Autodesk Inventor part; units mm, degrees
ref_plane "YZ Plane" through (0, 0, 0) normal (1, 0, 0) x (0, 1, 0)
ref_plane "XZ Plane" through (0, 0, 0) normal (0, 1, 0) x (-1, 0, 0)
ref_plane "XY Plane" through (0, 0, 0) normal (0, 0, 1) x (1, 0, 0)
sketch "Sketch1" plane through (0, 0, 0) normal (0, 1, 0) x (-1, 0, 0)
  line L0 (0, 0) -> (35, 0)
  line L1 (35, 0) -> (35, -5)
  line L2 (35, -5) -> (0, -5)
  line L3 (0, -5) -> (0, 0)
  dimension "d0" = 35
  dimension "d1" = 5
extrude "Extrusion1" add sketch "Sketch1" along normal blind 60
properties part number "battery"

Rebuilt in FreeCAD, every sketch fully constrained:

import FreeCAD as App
import Part
import Sketcher


def add_polygon(sketch, points):
    """Adds a closed chain of lines whose ends are joined by coincident constraints."""
    first, n = sketch.GeometryCount, len(points)
    for a, b in zip(points, points[1:] + points[:1]):
        sketch.addGeometry(Part.LineSegment(App.Vector(*a, 0), App.Vector(*b, 0)), False)
    for i in range(n):
        sketch.addConstraint(Sketcher.Constraint("Coincident", first + i, 2, first + (i + 1) % n, 1))

doc = App.newDocument("Part")
body = doc.addObject("PartDesign::Body", "Body")

# Sketch on XZ plane
sketch1 = doc.addObject("Sketcher::SketchObject", "Sketch")
body.addObject(sketch1)
sketch1.AttachmentSupport = (doc.XZ_Plane, [""])
sketch1.MapMode = "FlatFace"
add_polygon(sketch1, [(-35, 0), (0, 0), (0, -5), (-35, -5)])  # lines 0-3
sketch1.addConstraint([
    Sketcher.Constraint("Horizontal", 0),
    Sketcher.Constraint("Vertical", 1),
    Sketcher.Constraint("Horizontal", 2),
    Sketcher.Constraint("Vertical", 3),
    Sketcher.Constraint("Coincident", 0, 2, -1, 1),
    Sketcher.Constraint("DistanceX", 0, 1, 0, 2, 35.0),
    Sketcher.Constraint("DistanceY", 1, 2, 1, 1, 5.0),
])
pad1 = doc.addObject("PartDesign::Pad", "Pad")
body.addObject(pad1)
pad1.Profile = sketch1
pad1.Length = 60
pad1.Reversed = True

doc.recompute()
